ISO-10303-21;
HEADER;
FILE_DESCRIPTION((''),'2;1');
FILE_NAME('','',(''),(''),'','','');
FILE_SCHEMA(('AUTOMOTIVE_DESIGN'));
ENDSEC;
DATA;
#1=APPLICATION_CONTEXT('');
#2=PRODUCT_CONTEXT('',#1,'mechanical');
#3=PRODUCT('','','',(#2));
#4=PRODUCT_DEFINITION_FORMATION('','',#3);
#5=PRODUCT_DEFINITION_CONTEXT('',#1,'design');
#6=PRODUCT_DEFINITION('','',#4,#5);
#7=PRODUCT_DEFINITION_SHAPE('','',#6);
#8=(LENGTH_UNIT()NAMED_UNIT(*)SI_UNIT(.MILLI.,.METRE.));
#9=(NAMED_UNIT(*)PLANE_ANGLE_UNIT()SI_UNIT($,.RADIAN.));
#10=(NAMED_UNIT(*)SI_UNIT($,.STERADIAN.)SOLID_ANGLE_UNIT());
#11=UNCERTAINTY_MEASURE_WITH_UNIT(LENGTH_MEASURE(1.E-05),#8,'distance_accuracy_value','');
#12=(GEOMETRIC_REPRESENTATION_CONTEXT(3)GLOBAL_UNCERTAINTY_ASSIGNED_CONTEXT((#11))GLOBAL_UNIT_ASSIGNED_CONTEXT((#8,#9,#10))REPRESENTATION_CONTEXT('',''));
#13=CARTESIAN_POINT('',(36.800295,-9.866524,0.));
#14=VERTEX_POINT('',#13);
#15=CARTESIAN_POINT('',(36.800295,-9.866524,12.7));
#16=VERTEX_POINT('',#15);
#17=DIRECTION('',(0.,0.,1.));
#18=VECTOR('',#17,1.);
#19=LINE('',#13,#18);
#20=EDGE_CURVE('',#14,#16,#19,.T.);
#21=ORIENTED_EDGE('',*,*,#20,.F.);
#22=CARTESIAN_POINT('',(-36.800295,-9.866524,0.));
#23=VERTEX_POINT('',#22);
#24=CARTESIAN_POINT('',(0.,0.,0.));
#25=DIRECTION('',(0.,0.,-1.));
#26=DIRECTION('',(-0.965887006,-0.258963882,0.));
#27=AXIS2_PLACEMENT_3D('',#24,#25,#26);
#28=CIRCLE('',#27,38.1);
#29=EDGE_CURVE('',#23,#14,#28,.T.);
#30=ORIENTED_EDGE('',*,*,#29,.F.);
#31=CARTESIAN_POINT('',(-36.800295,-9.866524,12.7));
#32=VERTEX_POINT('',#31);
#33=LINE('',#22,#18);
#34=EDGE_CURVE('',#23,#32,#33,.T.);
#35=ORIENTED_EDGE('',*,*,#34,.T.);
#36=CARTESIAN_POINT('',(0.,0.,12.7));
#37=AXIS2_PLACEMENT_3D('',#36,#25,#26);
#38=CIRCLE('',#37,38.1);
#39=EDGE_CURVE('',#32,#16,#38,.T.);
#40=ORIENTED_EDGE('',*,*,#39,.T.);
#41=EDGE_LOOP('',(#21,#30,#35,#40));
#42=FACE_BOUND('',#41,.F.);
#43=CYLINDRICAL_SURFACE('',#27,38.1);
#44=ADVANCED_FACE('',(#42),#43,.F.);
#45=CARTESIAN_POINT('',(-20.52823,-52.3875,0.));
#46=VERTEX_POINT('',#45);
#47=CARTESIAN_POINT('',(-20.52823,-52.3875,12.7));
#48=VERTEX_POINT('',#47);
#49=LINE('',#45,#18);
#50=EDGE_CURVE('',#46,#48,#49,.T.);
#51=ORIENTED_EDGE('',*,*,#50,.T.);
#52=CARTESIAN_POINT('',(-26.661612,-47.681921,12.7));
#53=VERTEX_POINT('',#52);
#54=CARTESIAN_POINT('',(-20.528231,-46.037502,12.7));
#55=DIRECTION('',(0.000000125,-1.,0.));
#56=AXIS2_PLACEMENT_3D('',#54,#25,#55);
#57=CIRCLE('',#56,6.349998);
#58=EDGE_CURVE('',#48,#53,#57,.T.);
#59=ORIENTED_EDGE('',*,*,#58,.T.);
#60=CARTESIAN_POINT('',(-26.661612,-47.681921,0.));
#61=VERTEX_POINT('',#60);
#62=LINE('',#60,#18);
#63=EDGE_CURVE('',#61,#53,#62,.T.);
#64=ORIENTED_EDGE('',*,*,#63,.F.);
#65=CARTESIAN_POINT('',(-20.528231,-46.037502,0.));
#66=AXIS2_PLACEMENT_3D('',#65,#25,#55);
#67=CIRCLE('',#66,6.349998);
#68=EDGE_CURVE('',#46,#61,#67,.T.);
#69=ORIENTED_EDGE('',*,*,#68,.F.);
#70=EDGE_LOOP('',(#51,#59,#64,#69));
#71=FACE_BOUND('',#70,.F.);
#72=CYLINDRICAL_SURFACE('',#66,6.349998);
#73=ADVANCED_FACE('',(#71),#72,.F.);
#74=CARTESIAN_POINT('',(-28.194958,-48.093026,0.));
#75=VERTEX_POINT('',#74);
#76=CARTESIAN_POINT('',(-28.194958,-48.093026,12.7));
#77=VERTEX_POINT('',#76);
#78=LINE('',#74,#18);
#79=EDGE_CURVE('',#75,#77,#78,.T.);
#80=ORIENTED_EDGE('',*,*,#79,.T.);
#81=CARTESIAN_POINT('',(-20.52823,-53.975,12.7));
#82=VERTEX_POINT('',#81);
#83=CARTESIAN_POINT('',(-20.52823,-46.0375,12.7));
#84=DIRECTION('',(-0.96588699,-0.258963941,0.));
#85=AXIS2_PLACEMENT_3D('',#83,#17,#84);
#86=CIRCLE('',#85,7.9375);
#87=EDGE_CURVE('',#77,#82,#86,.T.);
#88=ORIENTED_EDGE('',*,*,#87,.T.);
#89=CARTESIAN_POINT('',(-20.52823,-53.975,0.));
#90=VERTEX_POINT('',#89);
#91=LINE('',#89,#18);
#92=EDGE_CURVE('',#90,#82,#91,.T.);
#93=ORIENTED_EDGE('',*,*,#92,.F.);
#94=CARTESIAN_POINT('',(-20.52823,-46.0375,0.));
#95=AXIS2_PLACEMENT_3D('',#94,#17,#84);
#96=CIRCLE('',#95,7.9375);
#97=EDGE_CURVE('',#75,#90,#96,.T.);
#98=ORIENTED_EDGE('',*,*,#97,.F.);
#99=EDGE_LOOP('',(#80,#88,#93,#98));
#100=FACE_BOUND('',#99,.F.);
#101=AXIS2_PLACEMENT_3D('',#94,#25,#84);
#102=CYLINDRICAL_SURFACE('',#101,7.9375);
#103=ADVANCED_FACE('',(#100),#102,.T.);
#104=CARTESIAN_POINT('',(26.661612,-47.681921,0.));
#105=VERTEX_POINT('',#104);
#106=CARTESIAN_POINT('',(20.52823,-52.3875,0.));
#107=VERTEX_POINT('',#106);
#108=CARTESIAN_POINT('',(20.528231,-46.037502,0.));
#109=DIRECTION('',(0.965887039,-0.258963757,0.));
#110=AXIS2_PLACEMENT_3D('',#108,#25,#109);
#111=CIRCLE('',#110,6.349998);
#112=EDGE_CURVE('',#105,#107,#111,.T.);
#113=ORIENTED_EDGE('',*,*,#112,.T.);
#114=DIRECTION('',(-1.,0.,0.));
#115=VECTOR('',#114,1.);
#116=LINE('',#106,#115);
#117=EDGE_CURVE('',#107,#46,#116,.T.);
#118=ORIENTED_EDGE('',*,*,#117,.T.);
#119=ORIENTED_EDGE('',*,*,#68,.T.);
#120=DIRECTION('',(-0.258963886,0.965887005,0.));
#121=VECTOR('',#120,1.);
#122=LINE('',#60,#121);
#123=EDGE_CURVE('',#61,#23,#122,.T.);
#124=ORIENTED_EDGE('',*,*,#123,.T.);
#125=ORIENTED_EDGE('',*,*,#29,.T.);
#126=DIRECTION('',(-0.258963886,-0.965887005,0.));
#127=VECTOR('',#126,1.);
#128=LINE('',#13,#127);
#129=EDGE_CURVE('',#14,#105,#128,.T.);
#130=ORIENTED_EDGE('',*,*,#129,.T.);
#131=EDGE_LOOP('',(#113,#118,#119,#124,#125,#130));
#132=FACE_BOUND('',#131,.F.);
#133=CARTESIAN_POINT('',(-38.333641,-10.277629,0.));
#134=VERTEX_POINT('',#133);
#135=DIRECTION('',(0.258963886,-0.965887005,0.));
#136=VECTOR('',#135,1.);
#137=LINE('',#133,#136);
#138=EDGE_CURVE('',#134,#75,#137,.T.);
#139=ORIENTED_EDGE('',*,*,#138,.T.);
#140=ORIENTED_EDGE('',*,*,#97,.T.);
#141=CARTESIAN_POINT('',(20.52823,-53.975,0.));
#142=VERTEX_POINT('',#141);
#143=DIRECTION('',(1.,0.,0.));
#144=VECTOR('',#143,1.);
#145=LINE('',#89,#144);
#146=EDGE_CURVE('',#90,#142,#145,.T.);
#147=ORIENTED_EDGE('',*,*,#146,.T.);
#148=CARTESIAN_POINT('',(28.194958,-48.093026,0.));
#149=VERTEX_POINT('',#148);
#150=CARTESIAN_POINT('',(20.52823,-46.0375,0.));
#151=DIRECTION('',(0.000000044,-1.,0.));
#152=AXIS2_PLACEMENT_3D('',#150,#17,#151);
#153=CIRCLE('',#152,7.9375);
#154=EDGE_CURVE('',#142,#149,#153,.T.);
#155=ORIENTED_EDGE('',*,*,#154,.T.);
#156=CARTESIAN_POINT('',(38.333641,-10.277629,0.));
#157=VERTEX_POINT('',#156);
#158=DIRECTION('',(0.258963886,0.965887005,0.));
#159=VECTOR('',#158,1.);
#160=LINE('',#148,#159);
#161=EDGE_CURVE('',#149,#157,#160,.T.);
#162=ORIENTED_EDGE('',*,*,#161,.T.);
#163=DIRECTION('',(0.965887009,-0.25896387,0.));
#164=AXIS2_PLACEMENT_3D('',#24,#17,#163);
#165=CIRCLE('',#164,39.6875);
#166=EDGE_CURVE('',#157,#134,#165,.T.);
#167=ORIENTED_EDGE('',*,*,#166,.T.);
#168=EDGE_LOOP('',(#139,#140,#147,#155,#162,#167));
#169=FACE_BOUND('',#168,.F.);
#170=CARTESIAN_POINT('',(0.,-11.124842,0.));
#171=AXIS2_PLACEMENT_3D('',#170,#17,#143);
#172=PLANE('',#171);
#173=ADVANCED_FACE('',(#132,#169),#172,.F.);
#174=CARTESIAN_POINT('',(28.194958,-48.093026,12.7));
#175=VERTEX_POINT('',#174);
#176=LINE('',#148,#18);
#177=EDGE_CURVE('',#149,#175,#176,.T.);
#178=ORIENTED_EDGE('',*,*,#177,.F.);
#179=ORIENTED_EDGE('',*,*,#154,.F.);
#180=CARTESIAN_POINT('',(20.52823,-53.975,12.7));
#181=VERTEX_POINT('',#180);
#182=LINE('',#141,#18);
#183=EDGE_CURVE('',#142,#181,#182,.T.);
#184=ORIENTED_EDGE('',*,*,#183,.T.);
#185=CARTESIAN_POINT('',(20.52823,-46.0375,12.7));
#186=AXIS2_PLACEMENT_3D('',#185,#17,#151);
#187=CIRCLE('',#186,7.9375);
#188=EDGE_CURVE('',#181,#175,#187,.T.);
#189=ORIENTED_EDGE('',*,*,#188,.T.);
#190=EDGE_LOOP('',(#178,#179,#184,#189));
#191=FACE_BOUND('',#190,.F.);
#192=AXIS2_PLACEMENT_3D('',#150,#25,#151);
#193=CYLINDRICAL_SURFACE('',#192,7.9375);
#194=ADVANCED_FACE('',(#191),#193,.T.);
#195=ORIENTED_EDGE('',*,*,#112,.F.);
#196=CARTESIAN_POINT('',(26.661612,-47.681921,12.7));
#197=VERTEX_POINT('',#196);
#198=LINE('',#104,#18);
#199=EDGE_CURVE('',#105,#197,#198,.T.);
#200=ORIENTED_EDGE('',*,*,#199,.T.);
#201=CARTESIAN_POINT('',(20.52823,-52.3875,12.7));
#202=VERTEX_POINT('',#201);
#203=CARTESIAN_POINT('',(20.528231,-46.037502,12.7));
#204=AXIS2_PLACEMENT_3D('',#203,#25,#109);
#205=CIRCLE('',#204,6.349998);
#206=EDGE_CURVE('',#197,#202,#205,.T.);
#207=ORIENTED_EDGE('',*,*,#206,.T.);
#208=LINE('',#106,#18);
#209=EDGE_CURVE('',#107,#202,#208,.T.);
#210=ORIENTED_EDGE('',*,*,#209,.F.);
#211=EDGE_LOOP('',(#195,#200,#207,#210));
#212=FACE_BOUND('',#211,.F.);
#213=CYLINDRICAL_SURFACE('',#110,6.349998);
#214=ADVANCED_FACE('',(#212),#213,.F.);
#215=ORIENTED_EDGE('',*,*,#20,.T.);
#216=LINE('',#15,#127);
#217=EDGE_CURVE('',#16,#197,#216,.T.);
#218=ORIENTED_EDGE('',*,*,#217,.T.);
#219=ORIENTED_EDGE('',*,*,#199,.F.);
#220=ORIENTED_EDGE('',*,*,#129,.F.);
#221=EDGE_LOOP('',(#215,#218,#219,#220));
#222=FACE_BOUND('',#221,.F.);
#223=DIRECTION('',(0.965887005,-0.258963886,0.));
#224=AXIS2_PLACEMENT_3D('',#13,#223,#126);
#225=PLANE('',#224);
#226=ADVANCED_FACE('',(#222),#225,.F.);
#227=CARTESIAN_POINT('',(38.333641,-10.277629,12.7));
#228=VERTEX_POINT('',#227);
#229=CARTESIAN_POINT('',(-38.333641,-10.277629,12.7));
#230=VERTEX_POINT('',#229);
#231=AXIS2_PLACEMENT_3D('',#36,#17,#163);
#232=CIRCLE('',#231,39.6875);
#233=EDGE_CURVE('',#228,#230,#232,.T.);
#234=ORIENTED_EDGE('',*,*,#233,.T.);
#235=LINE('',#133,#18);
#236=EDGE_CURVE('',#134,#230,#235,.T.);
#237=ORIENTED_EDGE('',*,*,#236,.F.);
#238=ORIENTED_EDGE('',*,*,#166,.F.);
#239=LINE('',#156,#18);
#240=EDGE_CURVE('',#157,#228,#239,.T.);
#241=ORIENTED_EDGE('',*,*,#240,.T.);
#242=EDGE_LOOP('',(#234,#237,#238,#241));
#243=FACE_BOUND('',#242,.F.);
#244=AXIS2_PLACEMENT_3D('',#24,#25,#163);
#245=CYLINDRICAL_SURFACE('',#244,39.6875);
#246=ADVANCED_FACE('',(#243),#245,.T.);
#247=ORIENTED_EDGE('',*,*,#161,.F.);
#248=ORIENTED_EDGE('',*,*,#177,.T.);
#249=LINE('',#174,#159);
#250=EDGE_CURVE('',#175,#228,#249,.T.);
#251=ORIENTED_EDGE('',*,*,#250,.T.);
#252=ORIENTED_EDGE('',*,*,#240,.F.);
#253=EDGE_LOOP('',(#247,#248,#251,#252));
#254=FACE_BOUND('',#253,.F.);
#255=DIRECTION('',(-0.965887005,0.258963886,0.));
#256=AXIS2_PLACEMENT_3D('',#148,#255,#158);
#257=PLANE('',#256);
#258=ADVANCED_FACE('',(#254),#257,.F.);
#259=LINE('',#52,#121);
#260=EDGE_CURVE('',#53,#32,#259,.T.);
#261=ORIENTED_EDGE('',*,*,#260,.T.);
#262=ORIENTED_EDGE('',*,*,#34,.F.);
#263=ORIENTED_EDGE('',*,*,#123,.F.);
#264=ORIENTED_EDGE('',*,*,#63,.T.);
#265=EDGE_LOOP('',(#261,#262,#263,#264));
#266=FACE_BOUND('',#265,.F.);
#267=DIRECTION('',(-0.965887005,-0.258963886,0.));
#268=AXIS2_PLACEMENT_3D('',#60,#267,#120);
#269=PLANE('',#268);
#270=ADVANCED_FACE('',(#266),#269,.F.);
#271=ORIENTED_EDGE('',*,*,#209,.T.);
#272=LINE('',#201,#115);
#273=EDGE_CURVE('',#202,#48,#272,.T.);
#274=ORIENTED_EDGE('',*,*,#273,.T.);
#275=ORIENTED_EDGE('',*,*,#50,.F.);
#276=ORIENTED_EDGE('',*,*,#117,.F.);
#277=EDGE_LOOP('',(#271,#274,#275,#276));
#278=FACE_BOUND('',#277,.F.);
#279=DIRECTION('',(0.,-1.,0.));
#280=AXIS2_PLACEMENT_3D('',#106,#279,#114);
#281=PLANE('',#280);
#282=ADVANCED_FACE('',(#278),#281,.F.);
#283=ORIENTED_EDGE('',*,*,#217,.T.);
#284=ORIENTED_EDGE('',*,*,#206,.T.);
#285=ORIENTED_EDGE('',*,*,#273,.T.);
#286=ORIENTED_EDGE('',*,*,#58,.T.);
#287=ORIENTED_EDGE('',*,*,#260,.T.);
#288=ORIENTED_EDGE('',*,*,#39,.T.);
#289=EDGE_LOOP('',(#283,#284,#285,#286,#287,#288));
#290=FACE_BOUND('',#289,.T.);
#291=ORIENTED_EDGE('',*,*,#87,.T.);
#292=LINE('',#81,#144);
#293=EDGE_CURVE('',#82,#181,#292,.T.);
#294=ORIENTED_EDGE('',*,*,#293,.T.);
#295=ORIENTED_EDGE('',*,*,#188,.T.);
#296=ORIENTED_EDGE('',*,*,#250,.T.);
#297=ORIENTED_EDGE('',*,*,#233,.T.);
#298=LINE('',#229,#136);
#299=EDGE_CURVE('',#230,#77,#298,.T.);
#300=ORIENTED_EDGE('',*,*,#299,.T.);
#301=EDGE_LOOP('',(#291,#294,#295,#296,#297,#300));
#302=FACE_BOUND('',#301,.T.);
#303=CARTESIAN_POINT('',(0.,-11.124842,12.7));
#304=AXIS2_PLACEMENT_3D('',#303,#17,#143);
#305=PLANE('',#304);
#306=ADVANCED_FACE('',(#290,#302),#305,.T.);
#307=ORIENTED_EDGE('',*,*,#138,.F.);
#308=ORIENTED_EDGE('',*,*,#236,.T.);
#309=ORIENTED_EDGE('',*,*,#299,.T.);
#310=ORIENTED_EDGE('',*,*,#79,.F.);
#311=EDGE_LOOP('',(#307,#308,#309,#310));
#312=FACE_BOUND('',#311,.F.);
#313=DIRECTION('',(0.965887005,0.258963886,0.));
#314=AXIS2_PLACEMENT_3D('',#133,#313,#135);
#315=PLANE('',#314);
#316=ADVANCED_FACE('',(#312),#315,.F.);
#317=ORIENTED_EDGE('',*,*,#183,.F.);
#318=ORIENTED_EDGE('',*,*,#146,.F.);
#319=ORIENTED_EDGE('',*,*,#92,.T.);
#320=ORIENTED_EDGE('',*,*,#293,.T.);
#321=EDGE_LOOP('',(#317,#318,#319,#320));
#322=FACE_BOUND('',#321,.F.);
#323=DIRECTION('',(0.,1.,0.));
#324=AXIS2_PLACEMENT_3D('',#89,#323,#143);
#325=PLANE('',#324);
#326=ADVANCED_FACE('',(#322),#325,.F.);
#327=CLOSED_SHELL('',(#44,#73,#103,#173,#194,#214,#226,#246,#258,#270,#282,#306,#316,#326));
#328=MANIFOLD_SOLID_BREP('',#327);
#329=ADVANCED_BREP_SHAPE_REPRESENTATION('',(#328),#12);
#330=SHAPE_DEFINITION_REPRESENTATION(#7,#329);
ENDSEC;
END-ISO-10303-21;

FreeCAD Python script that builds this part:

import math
import FreeCAD as App
import Part
import Sketcher

V = App.Vector
Q = App.Units.Quantity

doc = App.newDocument("Part")
body = doc.addObject("PartDesign::Body", "Body")

# Sketch on XY plane
sketch1 = doc.addObject("Sketcher::SketchObject", "Sketch")
body.addObject(sketch1)
sketch1.AttachmentSupport = (doc.XY_Plane, [""])
sketch1.MapMode = "FlatFace"
sketch1.addGeometry([
    Part.LineSegment(V(-21, -54, 0), V(21, -54, 0)),  # 0
    Part.ArcOfCircle(Part.Circle(V(21, -46, 0), V(0, 0, 1), 8), math.radians(-90), math.radians(-15)),  # 1
    Part.LineSegment(V(28, -48, 0), V(38, -10, 0)),  # 2
    Part.ArcOfCircle(Part.Circle(V(0, 0, 0), V(0, 0, 1), 40), math.radians(-15), math.radians(195)),  # 3
    Part.LineSegment(V(-38, -10, 0), V(-28, -48, 0)),  # 4
    Part.ArcOfCircle(Part.Circle(V(-21, -46, 0), V(0, 0, 1), 8), math.radians(-165), math.radians(-90)),  # 5
    Part.LineSegment(V(-27, -48, 0), V(-37, -10, 0)),  # 6
    Part.ArcOfCircle(Part.Circle(V(0, 0, 0), V(0, 0, 1), 38), math.radians(-15), math.radians(195)),  # 7
    Part.LineSegment(V(37, -10, 0), V(27, -48, 0)),  # 8
    Part.ArcOfCircle(Part.Circle(V(21, -46, 0), V(0, 0, 1), 6), math.radians(-90), math.radians(-15)),  # 9
    Part.LineSegment(V(21, -52, 0), V(-21, -52, 0)),  # 10
    Part.ArcOfCircle(Part.Circle(V(-21, -46, 0), V(0, 0, 1), 6), math.radians(-165), math.radians(-90)),  # 11
], False)
sketch1.addConstraint([
    Sketcher.Constraint("Tangent", 0, 2, 1, 1),
    Sketcher.Constraint("Tangent", 1, 2, 2, 1),
    Sketcher.Constraint("Tangent", 2, 2, 3, 1),
    Sketcher.Constraint("Tangent", 3, 2, 4, 1),
    Sketcher.Constraint("Tangent", 4, 2, 5, 1),
    Sketcher.Constraint("Tangent", 5, 2, 0, 1),
    Sketcher.Constraint("Tangent", 6, 2, 7, 2),
    Sketcher.Constraint("Tangent", 7, 1, 8, 1),
    Sketcher.Constraint("Tangent", 8, 2, 9, 2),
    Sketcher.Constraint("Tangent", 9, 1, 10, 1),
    Sketcher.Constraint("Tangent", 10, 2, 11, 2),
    Sketcher.Constraint("Tangent", 11, 1, 6, 1),
    Sketcher.Constraint("Horizontal", 0),
    Sketcher.Constraint("Horizontal", 10),
    Sketcher.Constraint("Coincident", 3, 3, -1, 1),
    Sketcher.Constraint("Coincident", 7, 3, -1, 1),
    Sketcher.Constraint("Coincident", 9, 3, 1, 3),
    Sketcher.Constraint("Coincident", 11, 3, 5, 3),
    Sketcher.Constraint("Equal", 1, 5),
    Sketcher.Constraint("Parallel", 4, 6),
    Sketcher.Constraint("Horizontal", 2, 2, 3, 2),
    Sketcher.Constraint("Radius", 7, Q("1.5 in")),
    Sketcher.Constraint("Radius", 9, Q("0.2499999 in")),
    Sketcher.Constraint("Radius", 1, Q("0.3125 in")),
    Sketcher.Constraint("DistanceY", 1, 3, -1, 1, Q("1.8125 in")),
    Sketcher.Constraint("DistanceX", 0, 1, 0, 2, 41.05646),
])
pad1 = doc.addObject("PartDesign::Pad", "Pad")
body.addObject(pad1)
pad1.Profile = sketch1
pad1.Length = Q("0.5 in")

doc.recompute()
